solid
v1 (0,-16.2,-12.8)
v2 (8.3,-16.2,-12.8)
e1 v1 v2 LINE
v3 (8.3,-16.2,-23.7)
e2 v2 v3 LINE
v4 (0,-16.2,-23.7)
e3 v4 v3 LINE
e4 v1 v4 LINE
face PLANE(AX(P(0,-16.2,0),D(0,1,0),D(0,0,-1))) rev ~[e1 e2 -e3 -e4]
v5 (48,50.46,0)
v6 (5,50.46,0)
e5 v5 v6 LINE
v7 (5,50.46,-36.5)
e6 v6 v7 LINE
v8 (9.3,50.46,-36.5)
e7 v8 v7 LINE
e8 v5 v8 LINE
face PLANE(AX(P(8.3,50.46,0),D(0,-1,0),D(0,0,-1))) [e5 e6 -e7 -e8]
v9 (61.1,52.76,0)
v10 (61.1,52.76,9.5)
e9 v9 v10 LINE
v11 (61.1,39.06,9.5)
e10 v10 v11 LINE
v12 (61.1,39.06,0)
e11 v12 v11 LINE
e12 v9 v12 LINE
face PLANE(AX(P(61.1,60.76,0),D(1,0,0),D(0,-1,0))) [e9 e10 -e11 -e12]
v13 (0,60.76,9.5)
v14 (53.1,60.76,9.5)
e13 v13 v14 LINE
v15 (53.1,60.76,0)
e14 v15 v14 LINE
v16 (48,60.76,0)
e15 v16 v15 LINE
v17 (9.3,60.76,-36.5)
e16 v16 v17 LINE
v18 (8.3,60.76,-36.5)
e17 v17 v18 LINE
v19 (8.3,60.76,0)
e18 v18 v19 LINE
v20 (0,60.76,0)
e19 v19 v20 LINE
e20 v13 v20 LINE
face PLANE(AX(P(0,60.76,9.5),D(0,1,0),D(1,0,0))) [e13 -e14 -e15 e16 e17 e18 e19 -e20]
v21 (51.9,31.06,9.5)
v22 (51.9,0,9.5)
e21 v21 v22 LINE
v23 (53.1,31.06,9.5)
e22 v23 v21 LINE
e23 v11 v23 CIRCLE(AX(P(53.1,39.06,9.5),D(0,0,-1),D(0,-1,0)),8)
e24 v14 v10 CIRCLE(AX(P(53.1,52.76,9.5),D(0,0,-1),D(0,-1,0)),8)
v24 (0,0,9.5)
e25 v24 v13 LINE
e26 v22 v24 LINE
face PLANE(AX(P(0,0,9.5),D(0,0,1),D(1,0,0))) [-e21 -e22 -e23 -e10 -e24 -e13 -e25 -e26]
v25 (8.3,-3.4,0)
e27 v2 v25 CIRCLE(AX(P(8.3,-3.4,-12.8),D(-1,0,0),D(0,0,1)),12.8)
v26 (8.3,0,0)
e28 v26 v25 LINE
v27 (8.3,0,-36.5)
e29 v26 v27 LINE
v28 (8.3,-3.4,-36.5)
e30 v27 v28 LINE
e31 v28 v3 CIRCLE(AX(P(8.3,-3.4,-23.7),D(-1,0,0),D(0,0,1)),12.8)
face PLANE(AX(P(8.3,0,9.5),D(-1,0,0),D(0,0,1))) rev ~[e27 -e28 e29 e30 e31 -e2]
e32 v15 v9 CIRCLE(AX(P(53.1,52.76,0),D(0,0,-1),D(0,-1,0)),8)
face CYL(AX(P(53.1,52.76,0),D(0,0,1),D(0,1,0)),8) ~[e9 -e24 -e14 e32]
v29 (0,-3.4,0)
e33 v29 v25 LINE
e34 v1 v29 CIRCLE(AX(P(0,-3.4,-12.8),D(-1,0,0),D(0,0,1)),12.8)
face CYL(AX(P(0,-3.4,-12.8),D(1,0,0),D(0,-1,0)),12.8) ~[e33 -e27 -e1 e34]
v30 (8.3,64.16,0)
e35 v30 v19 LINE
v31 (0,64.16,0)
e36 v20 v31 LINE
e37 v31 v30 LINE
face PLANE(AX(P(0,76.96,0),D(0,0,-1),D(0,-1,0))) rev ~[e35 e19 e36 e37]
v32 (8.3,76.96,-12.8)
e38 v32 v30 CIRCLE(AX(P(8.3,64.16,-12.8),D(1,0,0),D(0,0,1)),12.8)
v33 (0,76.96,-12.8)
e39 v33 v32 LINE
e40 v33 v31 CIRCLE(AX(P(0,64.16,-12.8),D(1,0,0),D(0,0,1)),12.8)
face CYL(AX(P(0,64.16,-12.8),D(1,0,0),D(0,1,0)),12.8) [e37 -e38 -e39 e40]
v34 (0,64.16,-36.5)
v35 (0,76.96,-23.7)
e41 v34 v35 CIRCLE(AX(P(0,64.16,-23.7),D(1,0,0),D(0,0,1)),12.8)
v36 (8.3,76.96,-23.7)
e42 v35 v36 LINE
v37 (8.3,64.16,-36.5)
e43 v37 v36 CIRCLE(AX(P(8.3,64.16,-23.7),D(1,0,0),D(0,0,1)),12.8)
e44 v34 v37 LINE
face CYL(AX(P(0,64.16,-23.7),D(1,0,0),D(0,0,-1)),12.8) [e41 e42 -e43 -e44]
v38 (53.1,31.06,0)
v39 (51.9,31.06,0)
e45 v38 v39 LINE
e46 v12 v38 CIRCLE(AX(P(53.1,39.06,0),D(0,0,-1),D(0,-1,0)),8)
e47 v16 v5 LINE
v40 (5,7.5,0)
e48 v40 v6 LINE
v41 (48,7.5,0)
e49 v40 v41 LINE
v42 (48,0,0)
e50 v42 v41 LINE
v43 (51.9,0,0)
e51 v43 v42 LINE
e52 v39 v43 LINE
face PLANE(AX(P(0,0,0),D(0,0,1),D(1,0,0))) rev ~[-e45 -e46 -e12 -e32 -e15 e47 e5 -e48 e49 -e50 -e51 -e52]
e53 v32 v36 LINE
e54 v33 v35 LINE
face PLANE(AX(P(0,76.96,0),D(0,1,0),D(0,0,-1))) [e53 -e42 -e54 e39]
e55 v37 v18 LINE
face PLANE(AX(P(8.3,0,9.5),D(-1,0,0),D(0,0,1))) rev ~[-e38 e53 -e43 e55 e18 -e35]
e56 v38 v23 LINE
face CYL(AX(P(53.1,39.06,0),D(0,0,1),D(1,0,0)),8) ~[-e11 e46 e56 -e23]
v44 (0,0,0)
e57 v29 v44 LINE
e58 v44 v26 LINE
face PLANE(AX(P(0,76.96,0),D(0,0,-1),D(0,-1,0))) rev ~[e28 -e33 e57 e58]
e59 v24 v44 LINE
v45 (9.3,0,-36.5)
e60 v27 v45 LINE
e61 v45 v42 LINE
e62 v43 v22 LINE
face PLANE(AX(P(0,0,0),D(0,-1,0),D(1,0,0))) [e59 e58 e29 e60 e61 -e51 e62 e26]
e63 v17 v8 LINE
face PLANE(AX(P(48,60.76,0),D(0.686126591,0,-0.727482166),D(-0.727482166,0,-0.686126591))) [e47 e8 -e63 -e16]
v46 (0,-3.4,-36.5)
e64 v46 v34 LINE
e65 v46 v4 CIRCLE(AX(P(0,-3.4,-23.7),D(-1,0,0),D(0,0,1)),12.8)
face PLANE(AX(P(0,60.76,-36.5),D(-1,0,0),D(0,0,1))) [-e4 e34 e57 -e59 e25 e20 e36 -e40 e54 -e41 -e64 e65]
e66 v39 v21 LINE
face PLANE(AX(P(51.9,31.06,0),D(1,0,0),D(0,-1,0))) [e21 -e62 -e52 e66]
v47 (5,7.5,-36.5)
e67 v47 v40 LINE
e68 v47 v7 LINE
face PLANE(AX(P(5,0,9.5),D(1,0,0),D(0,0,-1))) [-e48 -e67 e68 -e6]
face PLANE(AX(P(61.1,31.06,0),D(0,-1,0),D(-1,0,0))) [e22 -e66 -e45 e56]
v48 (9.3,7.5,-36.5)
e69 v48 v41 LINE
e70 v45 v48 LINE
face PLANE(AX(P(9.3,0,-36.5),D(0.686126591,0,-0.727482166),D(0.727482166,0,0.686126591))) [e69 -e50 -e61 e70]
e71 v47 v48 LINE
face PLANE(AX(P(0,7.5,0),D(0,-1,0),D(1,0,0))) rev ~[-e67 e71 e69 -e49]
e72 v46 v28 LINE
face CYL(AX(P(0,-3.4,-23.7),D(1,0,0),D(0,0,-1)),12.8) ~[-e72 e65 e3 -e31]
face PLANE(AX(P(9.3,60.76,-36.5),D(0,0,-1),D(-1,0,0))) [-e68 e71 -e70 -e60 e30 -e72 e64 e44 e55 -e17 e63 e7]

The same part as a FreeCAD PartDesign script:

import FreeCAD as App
import Part
import Sketcher
from FreeCAD import Vector


def edges_at(feature, points):
    """Names of the edges that pass closest to the given points."""
    edges = feature.Shape.Edges
    near = lambda p: min(range(len(edges)), key=lambda i: edges[i].distToShape(Part.Vertex(*p))[0])
    return sorted({f"Edge{near(p) + 1}" for p in points})

doc = App.newDocument("Part")
body = doc.addObject("PartDesign::Body", "Body")

# Sketch on XY plane
sketch1 = body.newObject("Sketcher::SketchObject", "Sketch")
sketch1.AttachmentSupport = (doc.getObject("XY_Plane"), [""])
sketch1.MapMode = "FlatFace"
sketch1.addGeometry([
    Part.LineSegment(Vector(0, 61, 0), Vector(0, 0, 0)),  # 0
    Part.LineSegment(Vector(0, 0, 0), Vector(52, 0, 0)),  # 1
    Part.LineSegment(Vector(52, 0, 0), Vector(52, 31, 0)),  # 2
    Part.LineSegment(Vector(52, 31, 0), Vector(61, 31, 0)),  # 3
    Part.LineSegment(Vector(61, 31, 0), Vector(61, 61, 0)),  # 4
    Part.LineSegment(Vector(61, 61, 0), Vector(0, 61, 0)),  # 5
], False)
sketch1.addConstraint([
    Sketcher.Constraint("Coincident", 0, 2, 1, 1),
    Sketcher.Constraint("Coincident", 1, 2, 2, 1),
    Sketcher.Constraint("Coincident", 2, 2, 3, 1),
    Sketcher.Constraint("Coincident", 3, 2, 4, 1),
    Sketcher.Constraint("Coincident", 4, 2, 5, 1),
    Sketcher.Constraint("Coincident", 5, 2, 0, 1),
    Sketcher.Constraint("Vertical", 0),
    Sketcher.Constraint("Horizontal", 1),
    Sketcher.Constraint("Vertical", 2),
    Sketcher.Constraint("Horizontal", 3),
    Sketcher.Constraint("Vertical", 4),
    Sketcher.Constraint("Horizontal", 5),
    Sketcher.Constraint("Coincident", 0, 2, -1, 1),
    Sketcher.Constraint("DistanceX", 1, 1, 1, 2, 51.9),
    Sketcher.Constraint("DistanceX", 3, 1, 3, 2, 9.2),
    Sketcher.Constraint("DistanceY", 4, 1, 4, 2, 29.7),
    Sketcher.Constraint("DistanceY", 0, 2, 0, 1, 60.76),
])
pad1 = body.newObject("PartDesign::Pad", "Pad")
pad1.Profile = sketch1
pad1.Length = 9.5
doc.recompute()

fillet = body.newObject("PartDesign::Fillet", "Fillet")
fillet.Base = (pad1, edges_at(pad1, [(61.1, 60.76, 4.75), (61.1, 31.06, 4.75)]))
fillet.Radius = 8

# Sketch on XZ plane
sketch2 = body.newObject("Sketcher::SketchObject", "Sketch001")
sketch2.AttachmentSupport = (doc.getObject("XZ_Plane"), [""])
sketch2.MapMode = "FlatFace"
sketch2.addGeometry([
    Part.LineSegment(Vector(9, -36, 0), Vector(48, 0, 0)),
    Part.LineSegment(Vector(48, 0, 0), Vector(0, 0, 0)),
    Part.LineSegment(Vector(0, 0, 0), Vector(0, -36, 0)),
    Part.LineSegment(Vector(0, -36, 0), Vector(9, -36, 0)),
], False)
sketch2.addConstraint([
    Sketcher.Constraint("Coincident", 0, 2, 1, 1),
    Sketcher.Constraint("Coincident", 1, 2, 2, 1),
    Sketcher.Constraint("Coincident", 2, 2, 3, 1),
    Sketcher.Constraint("Coincident", 3, 2, 0, 1),
    Sketcher.Constraint("Horizontal", 1),
    Sketcher.Constraint("Vertical", 2),
    Sketcher.Constraint("Horizontal", 3),
    Sketcher.Constraint("Coincident", 1, 2, -1, 1),
    Sketcher.Constraint("DistanceX", 3, 1, 3, 2, 9.3),
    Sketcher.Constraint("DistanceX", 1, 2, 1, 1, 48.0),
    Sketcher.Constraint("DistanceY", 2, 2, 2, 1, 36.5),
])
pad2 = body.newObject("PartDesign::Pad", "Pad001")
pad2.Profile = sketch2
pad2.Length = 7.5
pad2.Reversed = True

# Sketch on XZ plane
sketch3 = body.newObject("Sketcher::SketchObject", "Sketch002")
sketch3.AttachmentSupport = (doc.getObject("XZ_Plane"), [""])
sketch3.MapMode = "FlatFace"
sketch3.AttachmentOffset = App.Placement(Vector(0, 0, -60.76), App.Rotation())
sketch3.addGeometry([
    Part.LineSegment(Vector(9, -36, 0), Vector(0, -36, 0)),
    Part.LineSegment(Vector(0, -36, 0), Vector(0, 0, 0)),
    Part.LineSegment(Vector(0, 0, 0), Vector(48, 0, 0)),
    Part.LineSegment(Vector(48, 0, 0), Vector(9, -36, 0)),
], False)
sketch3.addConstraint([
    Sketcher.Constraint("Coincident", 0, 2, 1, 1),
    Sketcher.Constraint("Coincident", 1, 2, 2, 1),
    Sketcher.Constraint("Coincident", 2, 2, 3, 1),
    Sketcher.Constraint("Coincident", 3, 2, 0, 1),
    Sketcher.Constraint("Horizontal", 0),
    Sketcher.Constraint("Vertical", 1),
    Sketcher.Constraint("Horizontal", 2),
    Sketcher.Constraint("Coincident", 1, 2, -1, 1),
    Sketcher.Constraint("DistanceX", 2, 1, 2, 2, 48.0),
    Sketcher.Constraint("DistanceX", 0, 2, 0, 1, 9.3),
    Sketcher.Constraint("DistanceY", 1, 1, 1, 2, 36.5),
])
pad3 = body.newObject("PartDesign::Pad", "Pad002")
pad3.Profile = sketch3
pad3.Length = 10.3

# Sketch on YZ plane
sketch4 = body.newObject("Sketcher::SketchObject", "Sketch003")
sketch4.AttachmentSupport = (doc.getObject("YZ_Plane"), [""])
sketch4.MapMode = "FlatFace"
sketch4.addGeometry([
    Part.LineSegment(Vector(77, -36, 0), Vector(-16, -36, 0)),
    Part.LineSegment(Vector(-16, -36, 0), Vector(-16, 0, 0)),
    Part.LineSegment(Vector(-16, 0, 0), Vector(77, 0, 0)),
    Part.LineSegment(Vector(77, 0, 0), Vector(77, -36, 0)),
], False)
sketch4.addConstraint([
    Sketcher.Constraint("Coincident", 0, 2, 1, 1),
    Sketcher.Constraint("Coincident", 1, 2, 2, 1),
    Sketcher.Constraint("Coincident", 2, 2, 3, 1),
    Sketcher.Constraint("Coincident", 3, 2, 0, 1),
    Sketcher.Constraint("Horizontal", 0),
    Sketcher.Constraint("Vertical", 1),
    Sketcher.Constraint("Horizontal", 2),
    Sketcher.Constraint("Vertical", 3),
    Sketcher.Constraint("PointOnObject", 1, 2, -1),
    Sketcher.Constraint("DistanceX", 0, 2, 0, 1, 93.16),
    Sketcher.Constraint("DistanceX", 0, 2, -1, 1, 16.2),
    Sketcher.Constraint("DistanceY", 1, 1, 1, 2, 36.5),
])
pad4 = body.newObject("PartDesign::Pad", "Pad003")
pad4.Profile = sketch4
pad4.Length = 8.3

# Sketch on YZ plane
sketch5 = body.newObject("Sketcher::SketchObject", "Sketch004")
sketch5.AttachmentSupport = (doc.getObject("YZ_Plane"), [""])
sketch5.MapMode = "FlatFace"
sketch5.AttachmentOffset = App.Placement(Vector(0, 0, 8.3), App.Rotation())
sketch5.addGeometry([
    Part.LineSegment(Vector(50, -36, 0), Vector(50, 0, 0)),
    Part.LineSegment(Vector(50, 0, 0), Vector(8, 0, 0)),
    Part.LineSegment(Vector(8, 0, 0), Vector(8, -36, 0)),
    Part.LineSegment(Vector(8, -36, 0), Vector(50, -36, 0)),
], False)
sketch5.addConstraint([
    Sketcher.Constraint("Coincident", 0, 2, 1, 1),
    Sketcher.Constraint("Coincident", 1, 2, 2, 1),
    Sketcher.Constraint("Coincident", 2, 2, 3, 1),
    Sketcher.Constraint("Coincident", 3, 2, 0, 1),
    Sketcher.Constraint("Vertical", 0),
    Sketcher.Constraint("Horizontal", 1),
    Sketcher.Constraint("Vertical", 2),
    Sketcher.Constraint("Horizontal", 3),
    Sketcher.Constraint("PointOnObject", 0, 2, -1),
    Sketcher.Constraint("DistanceY", 0, 1, 0, 2, 36.5),
    Sketcher.Constraint("DistanceX", 1, 2, 1, 1, 42.96),
    Sketcher.Constraint("DistanceX", -1, 1, 1, 2, 7.5),
])
pocket1 = body.newObject("PartDesign::Pocket", "Pocket")
pocket1.Profile = sketch5
pocket1.Length = 3.3
doc.recompute()

fillet2 = body.newObject("PartDesign::Fillet", "Fillet001")
fillet2.Base = (pocket1, edges_at(pocket1, [
    (4.15, 76.96, -36.5),
    (4.15, -16.2, -36.5),
    (4.15, -16.2, 0),
    (4.15, 76.96, 0),
]))
fillet2.Radius = 12.8

doc.recompute()
